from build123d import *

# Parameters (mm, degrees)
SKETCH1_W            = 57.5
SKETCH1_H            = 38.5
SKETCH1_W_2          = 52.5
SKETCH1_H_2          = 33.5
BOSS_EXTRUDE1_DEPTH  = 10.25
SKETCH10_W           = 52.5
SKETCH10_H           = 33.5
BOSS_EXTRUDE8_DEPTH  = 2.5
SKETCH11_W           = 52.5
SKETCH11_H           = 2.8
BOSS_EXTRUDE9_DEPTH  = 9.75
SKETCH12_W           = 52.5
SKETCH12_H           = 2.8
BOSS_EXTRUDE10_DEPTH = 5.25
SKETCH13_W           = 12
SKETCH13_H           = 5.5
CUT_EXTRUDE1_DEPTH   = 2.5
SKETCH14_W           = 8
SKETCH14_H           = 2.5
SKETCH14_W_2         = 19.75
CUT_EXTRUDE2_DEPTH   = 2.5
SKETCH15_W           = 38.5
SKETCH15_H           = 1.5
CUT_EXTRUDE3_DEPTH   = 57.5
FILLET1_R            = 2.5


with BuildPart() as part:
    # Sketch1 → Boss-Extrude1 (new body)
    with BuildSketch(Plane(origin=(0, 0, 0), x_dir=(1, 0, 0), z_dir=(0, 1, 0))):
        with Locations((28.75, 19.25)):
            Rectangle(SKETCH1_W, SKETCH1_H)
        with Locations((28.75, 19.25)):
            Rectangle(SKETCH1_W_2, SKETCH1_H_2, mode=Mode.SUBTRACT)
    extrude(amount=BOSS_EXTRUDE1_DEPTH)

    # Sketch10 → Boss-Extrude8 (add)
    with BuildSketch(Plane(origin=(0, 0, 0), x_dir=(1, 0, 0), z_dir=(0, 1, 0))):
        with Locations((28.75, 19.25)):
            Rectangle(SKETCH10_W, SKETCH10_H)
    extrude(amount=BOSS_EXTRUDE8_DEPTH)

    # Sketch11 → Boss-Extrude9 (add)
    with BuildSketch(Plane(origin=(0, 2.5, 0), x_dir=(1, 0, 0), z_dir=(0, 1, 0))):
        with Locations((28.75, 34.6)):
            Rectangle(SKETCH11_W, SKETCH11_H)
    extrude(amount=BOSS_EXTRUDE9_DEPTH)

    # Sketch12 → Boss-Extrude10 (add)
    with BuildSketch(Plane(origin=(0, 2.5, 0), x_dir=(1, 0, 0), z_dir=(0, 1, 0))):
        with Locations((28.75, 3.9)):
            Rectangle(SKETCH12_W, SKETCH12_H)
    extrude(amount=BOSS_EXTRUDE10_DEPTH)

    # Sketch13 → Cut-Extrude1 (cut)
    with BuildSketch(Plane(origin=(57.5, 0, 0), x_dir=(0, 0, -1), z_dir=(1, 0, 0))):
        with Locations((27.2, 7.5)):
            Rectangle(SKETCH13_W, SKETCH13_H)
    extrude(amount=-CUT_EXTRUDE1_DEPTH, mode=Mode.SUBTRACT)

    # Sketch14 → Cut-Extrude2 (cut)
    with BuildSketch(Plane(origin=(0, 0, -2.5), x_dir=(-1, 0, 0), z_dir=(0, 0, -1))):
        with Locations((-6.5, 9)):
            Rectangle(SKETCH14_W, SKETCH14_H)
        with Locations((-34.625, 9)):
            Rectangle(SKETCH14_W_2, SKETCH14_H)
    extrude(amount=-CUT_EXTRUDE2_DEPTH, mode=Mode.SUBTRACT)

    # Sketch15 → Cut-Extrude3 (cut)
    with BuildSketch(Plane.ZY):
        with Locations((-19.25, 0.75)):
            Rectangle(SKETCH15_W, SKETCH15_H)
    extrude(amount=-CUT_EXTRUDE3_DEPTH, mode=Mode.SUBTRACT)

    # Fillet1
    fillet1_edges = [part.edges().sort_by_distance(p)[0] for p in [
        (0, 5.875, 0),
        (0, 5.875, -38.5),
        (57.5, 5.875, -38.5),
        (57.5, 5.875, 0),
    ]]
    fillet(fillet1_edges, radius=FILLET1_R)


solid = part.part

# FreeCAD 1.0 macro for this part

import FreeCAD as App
import Part
import Sketcher
from FreeCAD import Vector
Q = App.Units.Quantity


def edges_at(feature, points):
    """Names of the edges that pass closest to the given points."""
    edges = feature.Shape.Edges
    near = lambda p: min(range(len(edges)), key=lambda i: edges[i].distToShape(Part.Vertex(*p))[0])
    return sorted({f"Edge{near(p) + 1}" for p in points})


def add_polygon(sketch, points):
    """Adds a closed chain of lines whose ends are joined by coincident constraints."""
    first, n = sketch.GeometryCount, len(points)
    for a, b in zip(points, points[1:] + points[:1]):
        sketch.addGeometry(Part.LineSegment(App.Vector(*a, 0), App.Vector(*b, 0)), False)
    for i in range(n):
        sketch.addConstraint(Sketcher.Constraint("Coincident", first + i, 2, first + (i + 1) % n, 1))

doc = App.newDocument("Part")
body = doc.addObject("PartDesign::Body", "Body")

sketch1 = doc.addObject("Sketcher::SketchObject", "Sketch")
body.addObject(sketch1)
sketch1.AttachmentSupport = (doc.XZ_Plane, [""])
sketch1.MapMode = "FlatFace"
add_polygon(sketch1, [(0, -38), (0, 0), (58, 0), (58, -38)])
add_polygon(sketch1, [(55, -2), (2, -2), (2, -36), (55, -36)])
sketch1.addConstraint([
    Sketcher.Constraint("Vertical", 0),
    Sketcher.Constraint("Horizontal", 1),
    Sketcher.Constraint("Vertical", 2),
    Sketcher.Constraint("Horizontal", 3),
    Sketcher.Constraint("Horizontal", 4),
    Sketcher.Constraint("Vertical", 5),
    Sketcher.Constraint("Horizontal", 6),
    Sketcher.Constraint("Vertical", 7),
    Sketcher.Constraint("Coincident", 0, 2, -1, 1),
    Sketcher.Constraint("DistanceX", 1, 1, 1, 2, Q("57.5 mm")),
    Sketcher.Constraint("DistanceX", 4, 2, 4, 1, Q("52.5 mm")),
    Sketcher.Constraint("DistanceY", 0, 1, 0, 2, Q("38.5 mm")),
    Sketcher.Constraint("DistanceY", 5, 2, 5, 1, Q("33.5 mm")),
    Sketcher.Constraint("DistanceY", 5, 2, -1, 1, Q("36 mm")),
    Sketcher.Constraint("DistanceX", -1, 1, 6, 2, Q("55 mm")),
])
pad1 = doc.addObject("PartDesign::Pad", "Pad")
body.addObject(pad1)
pad1.Profile = sketch1
pad1.Length = 10.25
pad1.Reversed = True

sketch2 = doc.addObject("Sketcher::SketchObject", "Sketch001")
body.addObject(sketch2)
sketch2.AttachmentSupport = (doc.XZ_Plane, [""])
sketch2.MapMode = "FlatFace"
add_polygon(sketch2, [(2, -36), (2, -2), (55, -2), (55, -36)])
sketch2.addConstraint([
    Sketcher.Constraint("Vertical", 0),
    Sketcher.Constraint("Horizontal", 1),
    Sketcher.Constraint("Vertical", 2),
    Sketcher.Constraint("Horizontal", 3),
    Sketcher.Constraint("DistanceX", 1, 1, 1, 2, Q("52.5 mm")),
    Sketcher.Constraint("DistanceY", 0, 1, 0, 2, Q("33.5 mm")),
    Sketcher.Constraint("DistanceX", -1, 1, 1, 2, Q("55 mm")),
    Sketcher.Constraint("DistanceY", 2, 2, -1, 1, Q("36 mm")),
])
pad2 = doc.addObject("PartDesign::Pad", "Pad001")
body.addObject(pad2)
pad2.Profile = sketch2
pad2.Length = 2.5
pad2.Reversed = True

sketch3 = doc.addObject("Sketcher::SketchObject", "Sketch002")
body.addObject(sketch3)
sketch3.AttachmentSupport = (doc.XZ_Plane, [""])
sketch3.MapMode = "FlatFace"
sketch3.AttachmentOffset = App.Placement(Vector(0, 0, -2.5), App.Rotation())
add_polygon(sketch3, [(2.5, -36), (2.5, -33.2), (55, -33.2), (55, -36)])
sketch3.addConstraint([
    Sketcher.Constraint("Vertical", 0),
    Sketcher.Constraint("Horizontal", 1),
    Sketcher.Constraint("Vertical", 2),
    Sketcher.Constraint("Horizontal", 3),
    Sketcher.Constraint("DistanceX", 1, 1, 1, 2, Q("52.5 mm")),
    Sketcher.Constraint("DistanceY", 0, 1, 0, 2, Q("2.8 mm")),
    Sketcher.Constraint("DistanceX", -1, 1, 1, 2, Q("55 mm")),
    Sketcher.Constraint("DistanceY", 2, 2, -1, 1, Q("36 mm")),
])
pad3 = doc.addObject("PartDesign::Pad", "Pad002")
body.addObject(pad3)
pad3.Profile = sketch3
pad3.Length = 9.75
pad3.Reversed = True

sketch4 = doc.addObject("Sketcher::SketchObject", "Sketch003")
body.addObject(sketch4)
sketch4.AttachmentSupport = (doc.XZ_Plane, [""])
sketch4.MapMode = "FlatFace"
sketch4.AttachmentOffset = App.Placement(Vector(0, 0, -2.5), App.Rotation())
add_polygon(sketch4, [(2.5, -5.3), (2.5, -2.5), (55, -2.5), (55, -5.3)])
sketch4.addConstraint([
    Sketcher.Constraint("Vertical", 0),
    Sketcher.Constraint("Horizontal", 1),
    Sketcher.Constraint("Vertical", 2),
    Sketcher.Constraint("Horizontal", 3),
    Sketcher.Constraint("DistanceX", 1, 1, 1, 2, Q("52.5 mm")),
    Sketcher.Constraint("DistanceY", 0, 1, 0, 2, Q("2.8 mm")),
    Sketcher.Constraint("DistanceX", -1, 1, 1, 2, Q("55 mm")),
    Sketcher.Constraint("DistanceY", 0, 2, -1, 1, Q("2.5 mm")),
])
pad4 = doc.addObject("PartDesign::Pad", "Pad003")
body.addObject(pad4)
pad4.Profile = sketch4
pad4.Length = 5.25
pad4.Reversed = True

sketch5 = doc.addObject("Sketcher::SketchObject", "Sketch004")
body.addObject(sketch5)
sketch5.AttachmentSupport = (doc.YZ_Plane, [""])
sketch5.MapMode = "FlatFace"
sketch5.AttachmentOffset = App.Placement(Vector(0, 0, 57.5), App.Rotation())
add_polygon(sketch5, [(10, -21), (5, -21), (5, -33), (10, -33)])
sketch5.addConstraint([
    Sketcher.Constraint("Horizontal", 0),
    Sketcher.Constraint("Vertical", 1),
    Sketcher.Constraint("Horizontal", 2),
    Sketcher.Constraint("Vertical", 3),
    Sketcher.Constraint("DistanceY", 1, 2, 1, 1, Q("12 mm")),
    Sketcher.Constraint("DistanceX", 0, 2, 0, 1, Q("5.5 mm")),
    Sketcher.Constraint("DistanceY", 0, 2, -1, 1, Q("21.2 mm")),
    Sketcher.Constraint("DistanceX", -1, 1, 0, 2, Q("4.75 mm")),
])
pocket1 = doc.addObject("PartDesign::Pocket", "Pocket")
body.addObject(pocket1)
pocket1.Profile = sketch5
pocket1.Length = 2.5

sketch6 = doc.addObject("Sketcher::SketchObject", "Sketch005")
body.addObject(sketch6)
sketch6.AttachmentSupport = (doc.XY_Plane, [""])
sketch6.MapMode = "FlatFace"
sketch6.AttachmentOffset = App.Placement(Vector(0, 0, -2.5), App.Rotation())
add_polygon(sketch6, [(10.5, 10.2), (10.5, 7.8), (2.5, 7.8), (2.5, 10.2)])
add_polygon(sketch6, [(44.5, 10.2), (44.5, 7.8), (24.8, 7.8), (24.8, 10.2)])
sketch6.addConstraint([
    Sketcher.Constraint("Vertical", 0),
    Sketcher.Constraint("Horizontal", 1),
    Sketcher.Constraint("Vertical", 2),
    Sketcher.Constraint("Horizontal", 3),
    Sketcher.Constraint("Vertical", 4),
    Sketcher.Constraint("Horizontal", 5),
    Sketcher.Constraint("Vertical", 6),
    Sketcher.Constraint("Horizontal", 7),
    Sketcher.Constraint("Horizontal", 1, 2, 4, 2),
    Sketcher.Constraint("Horizontal", 3, 2, 6, 2),
    Sketcher.Constraint("DistanceX", 1, 2, 1, 1, Q("8 mm")),
    Sketcher.Constraint("DistanceY", 0, 2, 0, 1, Q("2.5 mm")),
    Sketcher.Constraint("DistanceX", 0, 2, 4, 2, Q("34 mm")),
    Sketcher.Constraint("DistanceX", 5, 2, 5, 1, Q("19.75 mm")),
    Sketcher.Constraint("DistanceX", -1, 1, 0, 2, Q("10.5 mm")),
    Sketcher.Constraint("DistanceY", -1, 1, 0, 2, Q("7.75 mm")),
])
pocket2 = doc.addObject("PartDesign::Pocket", "Pocket001")
body.addObject(pocket2)
pocket2.Profile = sketch6
pocket2.Length = 2.5
pocket2.Reversed = True

sketch7 = doc.addObject("Sketcher::SketchObject", "Sketch006")
body.addObject(sketch7)
sketch7.AttachmentSupport = (doc.YZ_Plane, [""])
sketch7.MapMode = "FlatFace"
add_polygon(sketch7, [(1.5, -38.5), (0, -38.5), (0, 0), (1.5, 0)])
sketch7.addConstraint([
    Sketcher.Constraint("Horizontal", 0),
    Sketcher.Constraint("Vertical", 1),
    Sketcher.Constraint("Horizontal", 2),
    Sketcher.Constraint("Vertical", 3),
    Sketcher.Constraint("Coincident", 1, 2, -1, 1),
    Sketcher.Constraint("DistanceX", 0, 2, 0, 1, Q("1.5 mm")),
    Sketcher.Constraint("DistanceY", 1, 1, 1, 2, Q("38.5 mm")),
])
pocket3 = doc.addObject("PartDesign::Pocket", "Pocket002")
body.addObject(pocket3)
pocket3.Profile = sketch7
pocket3.Length = 57.5
pocket3.Reversed = True
doc.recompute()

fillet = doc.addObject("PartDesign::Fillet", "Fillet")
body.addObject(fillet)
fillet.Base = (pocket3, edges_at(pocket3, [
    (0, 5.875, 0),
    (0, 5.875, -38.5),
    (57.5, 5.875, -38.5),
    (57.5, 5.875, 0),
]))
fillet.Radius = 2.5

doc.recompute()
